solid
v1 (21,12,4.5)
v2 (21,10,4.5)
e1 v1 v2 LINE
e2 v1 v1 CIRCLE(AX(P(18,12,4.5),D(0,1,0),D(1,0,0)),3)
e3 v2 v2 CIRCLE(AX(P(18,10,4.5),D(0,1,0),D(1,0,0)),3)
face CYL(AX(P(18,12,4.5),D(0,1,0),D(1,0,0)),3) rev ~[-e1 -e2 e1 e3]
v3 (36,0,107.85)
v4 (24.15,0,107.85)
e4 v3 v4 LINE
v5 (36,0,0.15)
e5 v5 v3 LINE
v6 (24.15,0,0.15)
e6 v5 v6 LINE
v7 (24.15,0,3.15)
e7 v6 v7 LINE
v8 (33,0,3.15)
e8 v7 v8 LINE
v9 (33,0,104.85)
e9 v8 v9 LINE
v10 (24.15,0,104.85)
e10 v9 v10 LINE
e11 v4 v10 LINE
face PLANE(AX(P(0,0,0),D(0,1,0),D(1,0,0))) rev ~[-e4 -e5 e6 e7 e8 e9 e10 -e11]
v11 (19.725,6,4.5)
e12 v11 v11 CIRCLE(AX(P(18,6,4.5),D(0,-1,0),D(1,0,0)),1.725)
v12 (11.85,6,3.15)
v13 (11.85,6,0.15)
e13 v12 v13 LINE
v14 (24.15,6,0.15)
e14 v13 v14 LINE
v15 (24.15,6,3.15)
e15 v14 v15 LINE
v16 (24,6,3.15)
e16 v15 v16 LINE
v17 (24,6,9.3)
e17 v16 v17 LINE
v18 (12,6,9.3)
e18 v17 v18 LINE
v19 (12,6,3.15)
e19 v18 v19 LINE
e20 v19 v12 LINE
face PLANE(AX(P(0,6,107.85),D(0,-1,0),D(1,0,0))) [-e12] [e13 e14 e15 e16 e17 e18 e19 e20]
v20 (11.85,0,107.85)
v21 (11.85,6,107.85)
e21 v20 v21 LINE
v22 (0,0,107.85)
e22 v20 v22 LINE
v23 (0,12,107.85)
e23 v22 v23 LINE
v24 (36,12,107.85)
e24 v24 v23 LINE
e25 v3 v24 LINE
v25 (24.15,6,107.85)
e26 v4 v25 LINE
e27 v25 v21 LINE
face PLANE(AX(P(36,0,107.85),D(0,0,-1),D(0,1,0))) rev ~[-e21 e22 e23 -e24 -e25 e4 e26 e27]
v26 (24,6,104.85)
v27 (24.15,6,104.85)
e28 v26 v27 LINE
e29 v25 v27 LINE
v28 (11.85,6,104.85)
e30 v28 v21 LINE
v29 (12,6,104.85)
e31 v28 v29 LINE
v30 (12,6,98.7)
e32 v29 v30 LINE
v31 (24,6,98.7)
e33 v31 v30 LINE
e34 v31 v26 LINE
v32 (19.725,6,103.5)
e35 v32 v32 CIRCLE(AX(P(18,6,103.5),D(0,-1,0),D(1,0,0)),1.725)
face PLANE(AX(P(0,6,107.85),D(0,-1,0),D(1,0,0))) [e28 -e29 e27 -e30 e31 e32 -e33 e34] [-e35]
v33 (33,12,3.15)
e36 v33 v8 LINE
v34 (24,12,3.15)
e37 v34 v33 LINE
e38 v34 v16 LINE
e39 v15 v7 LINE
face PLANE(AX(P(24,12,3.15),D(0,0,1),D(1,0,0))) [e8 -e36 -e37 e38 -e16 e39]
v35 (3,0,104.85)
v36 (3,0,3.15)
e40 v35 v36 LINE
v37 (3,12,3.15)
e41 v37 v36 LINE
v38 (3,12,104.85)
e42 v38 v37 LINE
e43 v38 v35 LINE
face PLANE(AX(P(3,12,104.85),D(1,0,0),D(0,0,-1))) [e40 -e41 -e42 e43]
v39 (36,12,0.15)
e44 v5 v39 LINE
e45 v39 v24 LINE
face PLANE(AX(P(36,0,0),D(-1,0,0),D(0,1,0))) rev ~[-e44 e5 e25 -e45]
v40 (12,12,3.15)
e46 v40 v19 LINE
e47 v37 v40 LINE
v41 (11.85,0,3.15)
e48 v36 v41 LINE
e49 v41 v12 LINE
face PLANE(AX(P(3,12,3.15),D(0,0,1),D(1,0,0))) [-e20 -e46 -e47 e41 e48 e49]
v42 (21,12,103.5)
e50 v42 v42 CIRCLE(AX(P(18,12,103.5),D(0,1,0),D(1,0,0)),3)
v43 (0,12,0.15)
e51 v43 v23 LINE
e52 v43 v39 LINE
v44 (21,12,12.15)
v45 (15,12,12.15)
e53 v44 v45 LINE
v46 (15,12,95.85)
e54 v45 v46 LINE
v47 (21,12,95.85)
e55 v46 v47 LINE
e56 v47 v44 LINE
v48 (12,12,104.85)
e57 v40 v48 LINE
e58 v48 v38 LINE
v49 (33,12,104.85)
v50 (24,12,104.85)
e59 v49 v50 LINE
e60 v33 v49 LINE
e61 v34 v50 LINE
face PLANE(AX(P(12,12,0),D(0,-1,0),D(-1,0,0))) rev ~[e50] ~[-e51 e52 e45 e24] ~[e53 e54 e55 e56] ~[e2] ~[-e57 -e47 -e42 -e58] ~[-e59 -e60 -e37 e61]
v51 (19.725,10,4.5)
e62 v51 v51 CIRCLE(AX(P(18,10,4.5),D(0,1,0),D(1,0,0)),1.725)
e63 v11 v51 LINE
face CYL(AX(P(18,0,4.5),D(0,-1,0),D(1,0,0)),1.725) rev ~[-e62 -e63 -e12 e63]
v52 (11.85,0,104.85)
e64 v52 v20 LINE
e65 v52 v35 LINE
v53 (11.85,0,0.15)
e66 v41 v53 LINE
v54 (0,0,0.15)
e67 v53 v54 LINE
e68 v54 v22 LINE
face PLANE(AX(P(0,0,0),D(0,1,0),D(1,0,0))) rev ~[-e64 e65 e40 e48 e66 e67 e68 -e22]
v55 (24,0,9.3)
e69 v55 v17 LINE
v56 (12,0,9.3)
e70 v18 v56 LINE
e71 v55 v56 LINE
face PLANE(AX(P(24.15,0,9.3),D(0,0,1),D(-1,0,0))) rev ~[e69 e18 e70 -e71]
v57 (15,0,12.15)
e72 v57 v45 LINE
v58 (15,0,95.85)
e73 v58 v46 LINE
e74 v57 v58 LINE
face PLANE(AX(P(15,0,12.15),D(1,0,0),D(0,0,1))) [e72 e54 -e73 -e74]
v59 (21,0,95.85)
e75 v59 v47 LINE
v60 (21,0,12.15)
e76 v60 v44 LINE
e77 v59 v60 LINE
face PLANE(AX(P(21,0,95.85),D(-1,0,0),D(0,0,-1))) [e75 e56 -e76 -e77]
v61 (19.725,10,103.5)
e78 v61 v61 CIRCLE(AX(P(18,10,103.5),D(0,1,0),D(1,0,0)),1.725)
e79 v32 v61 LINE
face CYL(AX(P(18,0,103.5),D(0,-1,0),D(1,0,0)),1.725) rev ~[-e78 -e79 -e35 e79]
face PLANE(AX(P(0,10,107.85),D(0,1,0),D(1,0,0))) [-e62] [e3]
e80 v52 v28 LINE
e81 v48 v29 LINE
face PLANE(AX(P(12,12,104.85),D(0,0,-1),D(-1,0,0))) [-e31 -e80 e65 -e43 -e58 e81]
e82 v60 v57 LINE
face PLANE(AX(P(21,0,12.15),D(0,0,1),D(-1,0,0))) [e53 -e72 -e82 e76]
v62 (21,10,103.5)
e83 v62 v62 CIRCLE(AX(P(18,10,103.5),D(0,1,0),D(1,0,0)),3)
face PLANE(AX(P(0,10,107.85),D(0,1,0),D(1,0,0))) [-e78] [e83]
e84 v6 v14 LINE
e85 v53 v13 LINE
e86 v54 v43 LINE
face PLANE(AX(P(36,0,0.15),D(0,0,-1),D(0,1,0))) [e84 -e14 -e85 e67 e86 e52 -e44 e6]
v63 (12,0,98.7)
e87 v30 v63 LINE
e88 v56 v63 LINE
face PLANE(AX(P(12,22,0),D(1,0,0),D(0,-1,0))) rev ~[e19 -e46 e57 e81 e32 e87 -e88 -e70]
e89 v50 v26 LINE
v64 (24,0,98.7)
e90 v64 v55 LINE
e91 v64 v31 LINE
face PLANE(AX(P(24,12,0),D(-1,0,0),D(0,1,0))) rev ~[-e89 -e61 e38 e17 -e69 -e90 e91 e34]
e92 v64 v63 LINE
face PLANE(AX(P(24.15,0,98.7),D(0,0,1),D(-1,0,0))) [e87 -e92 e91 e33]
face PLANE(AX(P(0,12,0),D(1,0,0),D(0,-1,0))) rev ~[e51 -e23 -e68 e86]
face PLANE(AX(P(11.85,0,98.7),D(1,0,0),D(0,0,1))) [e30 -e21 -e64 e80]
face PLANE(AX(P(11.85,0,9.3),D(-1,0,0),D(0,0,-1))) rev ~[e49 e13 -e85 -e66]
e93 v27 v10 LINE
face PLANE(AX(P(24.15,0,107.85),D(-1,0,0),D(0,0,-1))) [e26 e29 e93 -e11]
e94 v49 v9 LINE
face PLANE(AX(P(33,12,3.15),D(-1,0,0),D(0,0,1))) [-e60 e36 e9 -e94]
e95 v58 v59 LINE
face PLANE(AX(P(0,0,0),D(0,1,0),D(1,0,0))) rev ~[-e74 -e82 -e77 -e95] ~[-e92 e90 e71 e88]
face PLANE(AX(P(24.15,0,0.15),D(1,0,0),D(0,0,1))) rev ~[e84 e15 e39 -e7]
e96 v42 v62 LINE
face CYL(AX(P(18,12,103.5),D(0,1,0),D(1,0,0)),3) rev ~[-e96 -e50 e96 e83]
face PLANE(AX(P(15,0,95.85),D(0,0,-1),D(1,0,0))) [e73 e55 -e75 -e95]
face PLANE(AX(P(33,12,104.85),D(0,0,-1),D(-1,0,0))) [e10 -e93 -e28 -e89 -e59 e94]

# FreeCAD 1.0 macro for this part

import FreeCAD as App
import Part
import Sketcher
from FreeCAD import Vector

doc = App.newDocument("Part")
body = doc.addObject("PartDesign::Body", "Body")

# Sketch on XY plane
sketch1 = doc.addObject("Sketcher::SketchObject", "Sketch")
body.addObject(sketch1)
sketch1.AttachmentSupport = (doc.XY_Plane, [""])
sketch1.MapMode = "FlatFace"
sketch1.addGeometry([
    Part.LineSegment(Vector(0, 12, 0), Vector(0, 0, 0)),  # 0
    Part.LineSegment(Vector(0, 0, 0), Vector(36, 0, 0)),  # 1
    Part.LineSegment(Vector(36, 0, 0), Vector(36, 12, 0)),  # 2
    Part.LineSegment(Vector(36, 12, 0), Vector(24, 12, 0)),  # 3
    Part.LineSegment(Vector(24, 12, 0), Vector(24, 22, 0)),  # 4
    Part.LineSegment(Vector(24, 22, 0), Vector(12, 22, 0)),  # 5
    Part.LineSegment(Vector(12, 22, 0), Vector(12, 12, 0)),  # 6
    Part.LineSegment(Vector(12, 12, 0), Vector(0, 12, 0)),  # 7
], False)
sketch1.addConstraint([
    Sketcher.Constraint("Coincident", 0, 2, 1, 1),
    Sketcher.Constraint("Coincident", 1, 2, 2, 1),
    Sketcher.Constraint("Coincident", 2, 2, 3, 1),
    Sketcher.Constraint("Coincident", 3, 2, 4, 1),
    Sketcher.Constraint("Coincident", 4, 2, 5, 1),
    Sketcher.Constraint("Coincident", 5, 2, 6, 1),
    Sketcher.Constraint("Coincident", 6, 2, 7, 1),
    Sketcher.Constraint("Coincident", 7, 2, 0, 1),
    Sketcher.Constraint("Vertical", 0),
    Sketcher.Constraint("Horizontal", 1),
    Sketcher.Constraint("Vertical", 2),
    Sketcher.Constraint("Horizontal", 3),
    Sketcher.Constraint("Vertical", 4),
    Sketcher.Constraint("Horizontal", 5),
    Sketcher.Constraint("Vertical", 6),
    Sketcher.Constraint("Horizontal", 7),
    Sketcher.Constraint("Coincident", 0, 2, -1, 1),
    Sketcher.Constraint("Horizontal", 3, 2, 6, 2),
    Sketcher.Constraint("Equal", 3, 5),
    Sketcher.Constraint("Equal", 5, 7),
    Sketcher.Constraint("Equal", 7, 0),
    Sketcher.Constraint("DistanceX", 1, 1, 1, 2, 36.0),
    Sketcher.Constraint("DistanceY", 4, 1, 4, 2, 10.0),
])
pad1 = doc.addObject("PartDesign::Pad", "Pad")
body.addObject(pad1)
pad1.Profile = sketch1
pad1.Length = 108

# Sketch on XZ plane
sketch2 = doc.addObject("Sketcher::SketchObject", "Sketch001")
body.addObject(sketch2)
sketch2.AttachmentSupport = (doc.XZ_Plane, [""])
sketch2.MapMode = "FlatFace"
sketch2.addGeometry([
    Part.Circle(Vector(18, 4.5, 0), Vector(0, 0, 1), 1.7),
    Part.Circle(Vector(18, 103.5, 0), Vector(0, 0, 1), 1.7),
], False)
sketch2.addConstraint([
    Sketcher.Constraint("Equal", 0, 1),
    Sketcher.Constraint("Vertical", 0, 3, 1, 3),
    Sketcher.Constraint("Diameter", 0, 3.45),
    Sketcher.Constraint("DistanceX", -1, 1, 0, 3, 18.0),
    Sketcher.Constraint("DistanceY", -1, 1, 0, 3, 4.5),
    Sketcher.Constraint("DistanceY", 0, 3, 1, 3, 99.0),
])
pocket1 = doc.addObject("PartDesign::Pocket", "Pocket")
body.addObject(pocket1)
pocket1.Profile = sketch2
pocket1.Length = 20

# Sketch on XZ plane
sketch3 = doc.addObject("Sketcher::SketchObject", "Sketch002")
body.addObject(sketch3)
sketch3.AttachmentSupport = (doc.XZ_Plane, [""])
sketch3.MapMode = "FlatFace"
sketch3.AttachmentOffset = App.Placement(Vector(0, 0, -22), App.Rotation())
sketch3.addGeometry([
    Part.Circle(Vector(18, 4.5, 0), Vector(0, 0, 1), 3),
    Part.Circle(Vector(18, 103.5, 0), Vector(0, 0, 1), 3),
], False)
sketch3.addConstraint([
    Sketcher.Constraint("Equal", 0, 1),
    Sketcher.Constraint("Vertical", 0, 3, 1, 3),
    Sketcher.Constraint("Diameter", 0, 6.0),
    Sketcher.Constraint("DistanceX", -1, 1, 0, 3, 18.0),
    Sketcher.Constraint("DistanceY", 0, 3, 1, 3, 99.0),
    Sketcher.Constraint("DistanceY", -1, 1, 0, 3, 4.5),
])
pocket2 = doc.addObject("PartDesign::Pocket", "Pocket001")
body.addObject(pocket2)
pocket2.Profile = sketch3
pocket2.Length = 2
pocket2.Reversed = True

# Sketch on YZ plane
sketch4 = doc.addObject("Sketcher::SketchObject", "Sketch003")
body.addObject(sketch4)
sketch4.AttachmentSupport = (doc.YZ_Plane, [""])
sketch4.MapMode = "FlatFace"
sketch4.AttachmentOffset = App.Placement(Vector(0, 0, 36), App.Rotation())
sketch4.addGeometry([
    Part.LineSegment(Vector(12, 108, 0), Vector(0, 108, 0)),  # 0
    Part.LineSegment(Vector(0, 108, 0), Vector(0, 107.85, 0)),  # 1
    Part.LineSegment(Vector(0, 107.85, 0), Vector(12, 107.85, 0)),  # 2
    Part.LineSegment(Vector(12, 107.85, 0), Vector(12, 108, 0)),  # 3
    Part.LineSegment(Vector(12, 0.15, 0), Vector(0, 0.15, 0)),  # 4
    Part.LineSegment(Vector(0, 0.15, 0), Vector(0, 0, 0)),  # 5
    Part.LineSegment(Vector(0, 0, 0), Vector(12, 0, 0)),  # 6
    Part.LineSegment(Vector(12, 0, 0), Vector(12, 0.15, 0)),  # 7
], False)
sketch4.addConstraint([
    Sketcher.Constraint("Coincident", 0, 2, 1, 1),
    Sketcher.Constraint("Coincident", 1, 2, 2, 1),
    Sketcher.Constraint("Coincident", 2, 2, 3, 1),
    Sketcher.Constraint("Coincident", 3, 2, 0, 1),
    Sketcher.Constraint("Coincident", 4, 2, 5, 1),
    Sketcher.Constraint("Coincident", 5, 2, 6, 1),
    Sketcher.Constraint("Coincident", 6, 2, 7, 1),
    Sketcher.Constraint("Coincident", 7, 2, 4, 1),
    Sketcher.Constraint("Horizontal", 0),
    Sketcher.Constraint("Vertical", 1),
    Sketcher.Constraint("Horizontal", 2),
    Sketcher.Constraint("Vertical", 3),
    Sketcher.Constraint("Horizontal", 4),
    Sketcher.Constraint("Vertical", 5),
    Sketcher.Constraint("Horizontal", 6),
    Sketcher.Constraint("Vertical", 7),
    Sketcher.Constraint("Coincident", 5, 2, -1, 1),
    Sketcher.Constraint("PointOnObject", 0, 2, -2),
    Sketcher.Constraint("Vertical", 3, 2, 6, 2),
    Sketcher.Constraint("Equal", 3, 5),
    Sketcher.Constraint("DistanceX", 0, 2, 0, 1, 12.0),
    Sketcher.Constraint("DistanceY", 1, 2, 1, 1, 0.15),
    Sketcher.Constraint("DistanceY", -1, 1, 0, 2, 108.0),
])
pocket3 = doc.addObject("PartDesign::Pocket", "Pocket002")
body.addObject(pocket3)
pocket3.Profile = sketch4
pocket3.Type = "ThroughAll"

# Sketch on YZ plane
sketch5 = doc.addObject("Sketcher::SketchObject", "Sketch004")
body.addObject(sketch5)
sketch5.AttachmentSupport = (doc.YZ_Plane, [""])
sketch5.MapMode = "FlatFace"
sketch5.AttachmentOffset = App.Placement(Vector(0, 0, 24), App.Rotation())
sketch5.addGeometry([
    Part.LineSegment(Vector(12, 0.15, 0), Vector(12, 0, 0)),  # 0
    Part.LineSegment(Vector(12, 0, 0), Vector(22, 0, 0)),  # 1
    Part.LineSegment(Vector(22, 0, 0), Vector(22, 0.15, 0)),  # 2
    Part.LineSegment(Vector(22, 0.15, 0), Vector(12, 0.15, 0)),  # 3
    Part.LineSegment(Vector(12, 107.85, 0), Vector(22, 107.85, 0)),  # 4
    Part.LineSegment(Vector(22, 107.85, 0), Vector(22, 108, 0)),  # 5
    Part.LineSegment(Vector(22, 108, 0), Vector(12, 108, 0)),  # 6
    Part.LineSegment(Vector(12, 108, 0), Vector(12, 107.85, 0)),  # 7
], False)
sketch5.addConstraint([
    Sketcher.Constraint("Coincident", 0, 2, 1, 1),
    Sketcher.Constraint("Coincident", 1, 2, 2, 1),
    Sketcher.Constraint("Coincident", 2, 2, 3, 1),
    Sketcher.Constraint("Coincident", 3, 2, 0, 1),
    Sketcher.Constraint("Coincident", 4, 2, 5, 1),
    Sketcher.Constraint("Coincident", 5, 2, 6, 1),
    Sketcher.Constraint("Coincident", 6, 2, 7, 1),
    Sketcher.Constraint("Coincident", 7, 2, 4, 1),
    Sketcher.Constraint("Vertical", 0),
    Sketcher.Constraint("Horizontal", 1),
    Sketcher.Constraint("Vertical", 2),
    Sketcher.Constraint("Horizontal", 3),
    Sketcher.Constraint("Horizontal", 4),
    Sketcher.Constraint("Vertical", 5),
    Sketcher.Constraint("Horizontal", 6),
    Sketcher.Constraint("Vertical", 7),
    Sketcher.Constraint("PointOnObject", 0, 2, -1),
    Sketcher.Constraint("Vertical", 2, 2, 4, 2),
    Sketcher.Constraint("Vertical", 3, 2, 6, 2),
    Sketcher.Constraint("Equal", 2, 5),
    Sketcher.Constraint("DistanceY", 0, 2, 0, 1, 0.15),
    Sketcher.Constraint("DistanceX", 1, 1, 1, 2, 10.0),
    Sketcher.Constraint("DistanceX", -1, 1, 0, 2, 12.0),
    Sketcher.Constraint("DistanceY", -1, 1, 5, 2, 108.0),
])
pocket4 = doc.addObject("PartDesign::Pocket", "Pocket003")
body.addObject(pocket4)
pocket4.Profile = sketch5
pocket4.Type = "ThroughAll"

# Sketch on XZ plane
sketch6 = doc.addObject("Sketcher::SketchObject", "Sketch005")
body.addObject(sketch6)
sketch6.AttachmentSupport = (doc.XZ_Plane, [""])
sketch6.MapMode = "FlatFace"
sketch6.addGeometry([
    Part.LineSegment(Vector(12, 9, 0), Vector(12, 0, 0)),  # 0
    Part.LineSegment(Vector(12, 0, 0), Vector(24, 0, 0)),  # 1
    Part.LineSegment(Vector(24, 0, 0), Vector(24, 9, 0)),  # 2
    Part.LineSegment(Vector(24, 9, 0), Vector(12, 9, 0)),  # 3
    Part.LineSegment(Vector(24, 108, 0), Vector(12, 108, 0)),  # 4
    Part.LineSegment(Vector(12, 108, 0), Vector(12, 99, 0)),  # 5
    Part.LineSegment(Vector(12, 99, 0), Vector(24, 99, 0)),  # 6
    Part.LineSegment(Vector(24, 99, 0), Vector(24, 108, 0)),  # 7
], False)
sketch6.addConstraint([
    Sketcher.Constraint("Coincident", 0, 2, 1, 1),
    Sketcher.Constraint("Coincident", 1, 2, 2, 1),
    Sketcher.Constraint("Coincident", 2, 2, 3, 1),
    Sketcher.Constraint("Coincident", 3, 2, 0, 1),
    Sketcher.Constraint("Coincident", 4, 2, 5, 1),
    Sketcher.Constraint("Coincident", 5, 2, 6, 1),
    Sketcher.Constraint("Coincident", 6, 2, 7, 1),
    Sketcher.Constraint("Coincident", 7, 2, 4, 1),
    Sketcher.Constraint("Vertical", 0),
    Sketcher.Constraint("Horizontal", 1),
    Sketcher.Constraint("Vertical", 2),
    Sketcher.Constraint("Horizontal", 3),
    Sketcher.Constraint("Horizontal", 4),
    Sketcher.Constraint("Vertical", 5),
    Sketcher.Constraint("Horizontal", 6),
    Sketcher.Constraint("Vertical", 7),
    Sketcher.Constraint("Vertical", 3, 2, 4, 2),
    Sketcher.Constraint("Vertical", 2, 2, 6, 2),
    Sketcher.Constraint("Equal", 2, 5),
    Sketcher.Constraint("DistanceY", 0, 2, 0, 1, 9.15),
    Sketcher.Constraint("DistanceX", -1, 1, 0, 2, 11.85),
    Sketcher.Constraint("DistanceX", 1, 1, 1, 2, 12.3),
    Sketcher.Constraint("DistanceY", -1, 1, 2, 2, 9.3),
    Sketcher.Constraint("DistanceY", -1, 1, 5, 2, 98.7),
])
pocket5 = doc.addObject("PartDesign::Pocket", "Pocket004")
body.addObject(pocket5)
pocket5.Profile = sketch6
pocket5.Length = 6

# Sketch on XZ plane
sketch7 = doc.addObject("Sketcher::SketchObject", "Sketch006")
body.addObject(sketch7)
sketch7.AttachmentSupport = (doc.XZ_Plane, [""])
sketch7.MapMode = "FlatFace"
sketch7.addGeometry([
    Part.LineSegment(Vector(21, 96, 0), Vector(15, 96, 0)),
    Part.LineSegment(Vector(15, 96, 0), Vector(15, 12, 0)),
    Part.LineSegment(Vector(15, 12, 0), Vector(21, 12, 0)),
    Part.LineSegment(Vector(21, 12, 0), Vector(21, 96, 0)),
], False)
sketch7.addConstraint([
    Sketcher.Constraint("Coincident", 0, 2, 1, 1),
    Sketcher.Constraint("Coincident", 1, 2, 2, 1),
    Sketcher.Constraint("Coincident", 2, 2, 3, 1),
    Sketcher.Constraint("Coincident", 3, 2, 0, 1),
    Sketcher.Constraint("Horizontal", 0),
    Sketcher.Constraint("Vertical", 1),
    Sketcher.Constraint("Horizontal", 2),
    Sketcher.Constraint("Vertical", 3),
    Sketcher.Constraint("DistanceX", 0, 2, 0, 1, 6.0),
    Sketcher.Constraint("DistanceY", 1, 2, 1, 1, 83.7),
    Sketcher.Constraint("DistanceX", -1, 1, 0, 2, 15.0),
    Sketcher.Constraint("DistanceY", -1, 1, 0, 2, 95.85),
])
pocket6 = doc.addObject("PartDesign::Pocket", "Pocket005")
body.addObject(pocket6)
pocket6.Profile = sketch7
pocket6.Type = "ThroughAll"

# Sketch on XZ plane
sketch8 = doc.addObject("Sketcher::SketchObject", "Sketch007")
body.addObject(sketch8)
sketch8.AttachmentSupport = (doc.XZ_Plane, [""])
sketch8.MapMode = "FlatFace"
sketch8.AttachmentOffset = App.Placement(Vector(0, 0, -12), App.Rotation())
sketch8.addGeometry([
    Part.LineSegment(Vector(24, 105, 0), Vector(33, 105, 0)),  # 0
    Part.LineSegment(Vector(33, 105, 0), Vector(33, 3, 0)),  # 1
    Part.LineSegment(Vector(33, 3, 0), Vector(24, 3, 0)),  # 2
    Part.LineSegment(Vector(24, 3, 0), Vector(24, 105, 0)),  # 3
    Part.LineSegment(Vector(3, 105, 0), Vector(12, 105, 0)),  # 4
    Part.LineSegment(Vector(12, 105, 0), Vector(12, 3, 0)),  # 5
    Part.LineSegment(Vector(12, 3, 0), Vector(3, 3, 0)),  # 6
    Part.LineSegment(Vector(3, 3, 0), Vector(3, 105, 0)),  # 7
], False)
sketch8.addConstraint([
    Sketcher.Constraint("Coincident", 0, 2, 1, 1),
    Sketcher.Constraint("Coincident", 1, 2, 2, 1),
    Sketcher.Constraint("Coincident", 2, 2, 3, 1),
    Sketcher.Constraint("Coincident", 3, 2, 0, 1),
    Sketcher.Constraint("Coincident", 4, 2, 5, 1),
    Sketcher.Constraint("Coincident", 5, 2, 6, 1),
    Sketcher.Constraint("Coincident", 6, 2, 7, 1),
    Sketcher.Constraint("Coincident", 7, 2, 4, 1),
    Sketcher.Constraint("Horizontal", 0),
    Sketcher.Constraint("Vertical", 1),
    Sketcher.Constraint("Horizontal", 2),
    Sketcher.Constraint("Vertical", 3),
    Sketcher.Constraint("Horizontal", 4),
    Sketcher.Constraint("Vertical", 5),
    Sketcher.Constraint("Horizontal", 6),
    Sketcher.Constraint("Vertical", 7),
    Sketcher.Constraint("Horizontal", 3, 2, 4, 2),
    Sketcher.Constraint("Horizontal", 2, 2, 5, 2),
    Sketcher.Constraint("Equal", 2, 4),
    Sketcher.Constraint("DistanceX", -1, 1, 6, 2, 3.0),
    Sketcher.Constraint("DistanceX", 0, 1, 0, 2, 9.0),
    Sketcher.Constraint("DistanceY", 1, 2, 1, 1, 101.7),
    Sketcher.Constraint("DistanceX", -1, 1, 0, 2, 33.0),
    Sketcher.Constraint("DistanceY", -1, 1, 0, 2, 104.85),
])
pocket7 = doc.addObject("PartDesign::Pocket", "Pocket006")
body.addObject(pocket7)
pocket7.Profile = sketch8
pocket7.Type = "ThroughAll"
pocket7.Reversed = True

# Sketch on YZ plane
sketch9 = doc.addObject("Sketcher::SketchObject", "Sketch008")
body.addObject(sketch9)
sketch9.AttachmentSupport = (doc.YZ_Plane, [""])
sketch9.MapMode = "FlatFace"
sketch9.AttachmentOffset = App.Placement(Vector(0, 0, 24), App.Rotation())
sketch9.addGeometry([
    Part.LineSegment(Vector(22, 108, 0), Vector(12, 108, 0)),
    Part.LineSegment(Vector(12, 108, 0), Vector(12, 0, 0)),
    Part.LineSegment(Vector(12, 0, 0), Vector(22, 0, 0)),
    Part.LineSegment(Vector(22, 0, 0), Vector(22, 108, 0)),
], False)
sketch9.addConstraint([
    Sketcher.Constraint("Coincident", 0, 2, 1, 1),
    Sketcher.Constraint("Coincident", 1, 2, 2, 1),
    Sketcher.Constraint("Coincident", 2, 2, 3, 1),
    Sketcher.Constraint("Coincident", 3, 2, 0, 1),
    Sketcher.Constraint("Horizontal", 0),
    Sketcher.Constraint("Vertical", 1),
    Sketcher.Constraint("Horizontal", 2),
    Sketcher.Constraint("Vertical", 3),
    Sketcher.Constraint("DistanceX", 0, 2, 0, 1, 10.0),
    Sketcher.Constraint("DistanceY", 1, 2, 1, 1, 107.7),
    Sketcher.Constraint("DistanceX", -1, 1, 0, 2, 12.0),
    Sketcher.Constraint("DistanceY", -1, 1, 0, 2, 107.85),
])
pocket8 = doc.addObject("PartDesign::Pocket", "Pocket007")
body.addObject(pocket8)
pocket8.Profile = sketch9
pocket8.Type = "ThroughAll"

# Sketch on XZ plane
sketch10 = doc.addObject("Sketcher::SketchObject", "Sketch009")
body.addObject(sketch10)
sketch10.AttachmentSupport = (doc.XZ_Plane, [""])
sketch10.MapMode = "FlatFace"
sketch10.AttachmentOffset = App.Placement(Vector(0, 0, -12), App.Rotation())
sketch10.addGeometry([
    Part.Circle(Vector(18, 4.5, 0), Vector(0, 0, 1), 3),
    Part.Circle(Vector(18, 4.5, 0), Vector(0, 0, 1), 1.7),
    Part.Circle(Vector(18, 103.5, 0), Vector(0, 0, 1), 3),
    Part.Circle(Vector(18, 103.5, 0), Vector(0, 0, 1), 1.7),
], False)
sketch10.addConstraint([
    Sketcher.Constraint("Coincident", 1, 3, 0, 3),
    Sketcher.Constraint("Coincident", 3, 3, 2, 3),
    Sketcher.Constraint("Equal", 0, 2),
    Sketcher.Constraint("Equal", 1, 3),
    Sketcher.Constraint("Vertical", 1, 3, 2, 3),
    Sketcher.Constraint("Diameter", 0, 6.0),
    Sketcher.Constraint("Diameter", 1, 3.45),
    Sketcher.Constraint("DistanceX", -1, 1, 0, 3, 18.0),
    Sketcher.Constraint("DistanceY", 0, 3, 2, 3, 99.0),
    Sketcher.Constraint("DistanceY", -1, 1, 0, 3, 4.5),
])
pocket9 = doc.addObject("PartDesign::Pocket", "Pocket008")
body.addObject(pocket9)
pocket9.Profile = sketch10
pocket9.Length = 2
pocket9.Reversed = True

doc.recompute()
